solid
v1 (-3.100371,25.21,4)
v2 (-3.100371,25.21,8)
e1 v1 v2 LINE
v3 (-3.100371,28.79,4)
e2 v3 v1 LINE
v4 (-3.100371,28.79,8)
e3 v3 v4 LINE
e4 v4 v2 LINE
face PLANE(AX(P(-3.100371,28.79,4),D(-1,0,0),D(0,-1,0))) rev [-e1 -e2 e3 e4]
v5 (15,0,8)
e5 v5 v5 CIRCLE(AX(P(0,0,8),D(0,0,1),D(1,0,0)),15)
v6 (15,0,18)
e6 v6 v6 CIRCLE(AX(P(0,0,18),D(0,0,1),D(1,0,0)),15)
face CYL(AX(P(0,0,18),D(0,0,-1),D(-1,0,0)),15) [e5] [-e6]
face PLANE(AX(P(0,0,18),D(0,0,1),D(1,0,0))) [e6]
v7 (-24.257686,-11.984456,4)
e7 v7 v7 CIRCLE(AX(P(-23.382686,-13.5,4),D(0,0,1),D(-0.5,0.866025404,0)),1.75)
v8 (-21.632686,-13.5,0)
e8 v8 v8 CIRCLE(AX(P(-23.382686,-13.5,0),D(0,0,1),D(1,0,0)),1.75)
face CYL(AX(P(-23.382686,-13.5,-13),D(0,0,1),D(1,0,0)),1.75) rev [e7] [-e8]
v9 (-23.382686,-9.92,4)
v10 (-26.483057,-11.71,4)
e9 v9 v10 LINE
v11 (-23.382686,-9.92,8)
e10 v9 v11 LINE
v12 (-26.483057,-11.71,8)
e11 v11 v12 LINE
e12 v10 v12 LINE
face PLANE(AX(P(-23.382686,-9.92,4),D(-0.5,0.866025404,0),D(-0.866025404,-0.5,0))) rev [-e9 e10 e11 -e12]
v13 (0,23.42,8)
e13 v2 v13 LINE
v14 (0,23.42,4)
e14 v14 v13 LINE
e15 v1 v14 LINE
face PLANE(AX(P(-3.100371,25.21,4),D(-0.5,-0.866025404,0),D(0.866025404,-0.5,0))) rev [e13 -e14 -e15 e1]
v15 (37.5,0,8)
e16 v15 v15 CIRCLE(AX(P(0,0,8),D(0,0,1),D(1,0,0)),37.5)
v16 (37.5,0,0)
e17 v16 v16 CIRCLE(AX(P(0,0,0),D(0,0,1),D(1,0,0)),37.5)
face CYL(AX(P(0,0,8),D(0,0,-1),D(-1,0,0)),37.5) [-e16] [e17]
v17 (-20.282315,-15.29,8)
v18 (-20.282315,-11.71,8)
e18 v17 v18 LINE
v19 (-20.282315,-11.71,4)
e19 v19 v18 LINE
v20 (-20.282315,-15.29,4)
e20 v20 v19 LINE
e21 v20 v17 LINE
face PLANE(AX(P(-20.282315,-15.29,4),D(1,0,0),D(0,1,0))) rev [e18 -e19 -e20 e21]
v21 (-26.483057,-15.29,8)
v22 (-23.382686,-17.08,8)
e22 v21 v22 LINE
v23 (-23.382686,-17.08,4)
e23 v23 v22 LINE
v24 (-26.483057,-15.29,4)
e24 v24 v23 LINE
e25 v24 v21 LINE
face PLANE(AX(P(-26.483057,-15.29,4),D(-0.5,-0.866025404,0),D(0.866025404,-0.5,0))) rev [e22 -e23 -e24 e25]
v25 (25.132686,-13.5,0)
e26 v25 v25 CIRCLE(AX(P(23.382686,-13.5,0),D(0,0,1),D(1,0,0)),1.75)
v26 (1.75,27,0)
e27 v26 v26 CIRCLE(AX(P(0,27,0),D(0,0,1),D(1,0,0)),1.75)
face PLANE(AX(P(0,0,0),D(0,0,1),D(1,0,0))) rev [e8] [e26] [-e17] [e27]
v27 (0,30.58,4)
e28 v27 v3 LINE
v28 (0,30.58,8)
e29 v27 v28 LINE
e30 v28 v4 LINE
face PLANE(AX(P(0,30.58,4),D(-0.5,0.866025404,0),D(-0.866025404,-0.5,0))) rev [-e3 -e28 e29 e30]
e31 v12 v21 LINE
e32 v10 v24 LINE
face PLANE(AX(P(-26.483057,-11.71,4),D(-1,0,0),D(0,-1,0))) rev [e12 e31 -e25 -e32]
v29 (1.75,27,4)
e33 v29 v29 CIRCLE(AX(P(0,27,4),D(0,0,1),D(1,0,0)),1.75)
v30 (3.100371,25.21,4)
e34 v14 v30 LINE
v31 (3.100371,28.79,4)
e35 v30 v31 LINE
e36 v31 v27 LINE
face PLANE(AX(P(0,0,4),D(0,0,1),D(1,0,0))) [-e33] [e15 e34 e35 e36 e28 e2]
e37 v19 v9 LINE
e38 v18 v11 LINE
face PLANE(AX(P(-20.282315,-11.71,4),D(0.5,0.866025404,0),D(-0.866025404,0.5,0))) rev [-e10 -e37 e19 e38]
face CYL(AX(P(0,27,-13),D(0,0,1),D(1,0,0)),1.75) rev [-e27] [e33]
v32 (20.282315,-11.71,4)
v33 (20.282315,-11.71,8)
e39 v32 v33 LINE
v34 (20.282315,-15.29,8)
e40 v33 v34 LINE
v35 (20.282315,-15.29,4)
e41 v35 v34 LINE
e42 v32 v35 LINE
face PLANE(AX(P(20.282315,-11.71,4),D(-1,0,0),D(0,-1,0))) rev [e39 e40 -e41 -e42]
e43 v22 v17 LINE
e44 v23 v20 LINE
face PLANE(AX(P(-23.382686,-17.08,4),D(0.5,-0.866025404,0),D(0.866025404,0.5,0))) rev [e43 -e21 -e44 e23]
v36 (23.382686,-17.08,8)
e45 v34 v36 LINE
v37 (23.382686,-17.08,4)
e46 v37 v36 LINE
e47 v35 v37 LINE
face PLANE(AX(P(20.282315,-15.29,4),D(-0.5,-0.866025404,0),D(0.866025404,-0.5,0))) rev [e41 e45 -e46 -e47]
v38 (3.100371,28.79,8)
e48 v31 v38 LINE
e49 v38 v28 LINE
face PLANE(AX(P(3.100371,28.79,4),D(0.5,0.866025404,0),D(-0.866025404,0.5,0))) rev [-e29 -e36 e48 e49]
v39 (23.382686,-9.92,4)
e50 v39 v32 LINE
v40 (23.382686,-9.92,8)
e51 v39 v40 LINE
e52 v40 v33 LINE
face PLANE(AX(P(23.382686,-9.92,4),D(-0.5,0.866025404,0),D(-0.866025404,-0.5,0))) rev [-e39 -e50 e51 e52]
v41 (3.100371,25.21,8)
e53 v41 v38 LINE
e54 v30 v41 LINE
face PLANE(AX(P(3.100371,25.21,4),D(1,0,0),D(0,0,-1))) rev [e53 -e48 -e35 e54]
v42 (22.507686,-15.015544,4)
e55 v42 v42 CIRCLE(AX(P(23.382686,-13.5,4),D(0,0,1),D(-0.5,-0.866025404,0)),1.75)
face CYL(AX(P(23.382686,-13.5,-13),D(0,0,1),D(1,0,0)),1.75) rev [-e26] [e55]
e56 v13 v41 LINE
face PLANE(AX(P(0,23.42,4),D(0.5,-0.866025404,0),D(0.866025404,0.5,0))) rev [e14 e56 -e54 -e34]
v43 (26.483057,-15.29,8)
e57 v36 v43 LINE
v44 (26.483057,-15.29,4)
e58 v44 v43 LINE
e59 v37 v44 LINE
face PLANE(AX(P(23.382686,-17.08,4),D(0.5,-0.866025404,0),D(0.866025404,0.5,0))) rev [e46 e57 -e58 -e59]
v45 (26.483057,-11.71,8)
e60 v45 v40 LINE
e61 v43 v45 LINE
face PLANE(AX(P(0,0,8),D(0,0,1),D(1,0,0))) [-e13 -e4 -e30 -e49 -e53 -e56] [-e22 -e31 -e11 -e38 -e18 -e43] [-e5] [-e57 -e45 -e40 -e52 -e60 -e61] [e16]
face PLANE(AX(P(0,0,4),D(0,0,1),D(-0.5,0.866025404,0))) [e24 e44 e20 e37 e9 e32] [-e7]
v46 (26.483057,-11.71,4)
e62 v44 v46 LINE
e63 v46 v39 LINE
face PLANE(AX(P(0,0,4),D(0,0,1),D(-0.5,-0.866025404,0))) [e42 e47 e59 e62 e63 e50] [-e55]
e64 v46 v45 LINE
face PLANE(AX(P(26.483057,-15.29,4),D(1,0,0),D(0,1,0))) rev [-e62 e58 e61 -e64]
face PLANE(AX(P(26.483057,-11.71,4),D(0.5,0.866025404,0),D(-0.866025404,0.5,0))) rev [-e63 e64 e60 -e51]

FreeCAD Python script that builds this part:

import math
import FreeCAD as App
import Part
import Sketcher

V = App.Vector
Q = App.Units.Quantity


def add_polygon(sketch, points):
    """Adds a closed chain of lines whose ends are joined by coincident constraints."""
    first, n = sketch.GeometryCount, len(points)
    for a, b in zip(points, points[1:] + points[:1]):
        sketch.addGeometry(Part.LineSegment(App.Vector(*a, 0), App.Vector(*b, 0)), False)
    for i in range(n):
        sketch.addConstraint(Sketcher.Constraint("Coincident", first + i, 2, first + (i + 1) % n, 1))

doc = App.newDocument("Part")
params = doc.addObject("Spreadsheet::Sheet", "Params")
for row, (alias, value) in enumerate([
    ("sketch1_diameter", "75 mm"),
    ("pad1_length", "8 mm"),
    ("sketch2_height", "3.58 mm"),
    ("sketch2_length", "3.58 mm"),
    ("pocket1_length", "4 mm"),
    ("sketch3_radius", "1.75 mm"),
    ("pocket2_length", "17 mm"),
    ("sketch4_diameter", "30 mm"),
    ("pad2_length", "10 mm"),
], start=1):
    params.set(f"A{row}", alias)
    params.set(f"B{row}", "=" + value)
    params.setAlias(f"B{row}", alias)

body = doc.addObject("PartDesign::Body", "Body")

sketch1 = body.newObject("Sketcher::SketchObject", "Sketch")
sketch1.AttachmentSupport = (doc.getObject("XY_Plane"), [""])
sketch1.MapMode = "FlatFace"
sketch1.addGeometry(Part.Circle(V(0, 0, 0), V(0, 0, 1), 38), False)
sketch1.addConstraint(Sketcher.Constraint("Coincident", 0, 3, -1, 1))
sketch1.addConstraint(Sketcher.Constraint("Diameter", 0, 75.0))
sketch1.setExpression("Constraints[1]", "Params.sketch1_diameter")
pad1 = body.newObject("PartDesign::Pad", "Pad")
pad1.Profile = sketch1
pad1.setExpression("Length", "Params.pad1_length")

sketch2 = body.newObject("Sketcher::SketchObject", "Sketch001")
sketch2.AttachmentSupport = (doc.getObject("XY_Plane"), [""])
sketch2.MapMode = "FlatFace"
sketch2.AttachmentOffset = App.Placement(V(0, 0, 8), App.Rotation())
add_polygon(sketch2, [(0, 23.4), (3.1, 25.2), (3.1, 28.8), (0, 30.6), (-3.1, 28.8), (-3.1, 25.2)])
sketch2.addConstraint(Sketcher.Constraint("Vertical", 1))
sketch2.addConstraint(Sketcher.Constraint("Vertical", 4))
sketch2.addConstraint(Sketcher.Constraint("Symmetric", 1, 2, 3, 2, -2))
sketch2.addConstraint(Sketcher.Constraint("PointOnObject", 2, 2, -2))
sketch2.addConstraint(Sketcher.Constraint("PointOnObject", 5, 2, -2))
sketch2.addConstraint(Sketcher.Constraint("Parallel", 0, 3))
sketch2.addConstraint(Sketcher.Constraint("Parallel", 2, 5))
sketch2.addConstraint(Sketcher.Constraint("Angle", 0, Q("30 deg")))
sketch2.addConstraint(Sketcher.Constraint("DistanceY", 1, 1, 1, 2, 3.58))
sketch2.addConstraint(Sketcher.Constraint("Distance", 0, 3.58))
sketch2.addConstraint(Sketcher.Constraint("DistanceY", -1, 1, 0, 2, 25.21))
sketch2.setExpression("Constraints[14]", "Params.sketch2_height")
sketch2.setExpression("Constraints[15]", "Params.sketch2_length")
pocket1 = body.newObject("PartDesign::Pocket", "Pocket")
pocket1.Profile = sketch2
pocket1.setExpression("Length", "Params.pocket1_length")
doc.recompute()

polarpattern = body.newObject("PartDesign::PolarPattern", "PolarPattern")
polarpattern.Originals = [pocket1]
polarpattern.Axis = (doc.getObject("Z_Axis"), [""])
polarpattern.Angle = 360
polarpattern.Occurrences = 3
body.Tip = polarpattern

sketch3 = body.newObject("Sketcher::SketchObject", "Sketch002")
sketch3.AttachmentSupport = (doc.getObject("XY_Plane"), [""])
sketch3.MapMode = "FlatFace"
sketch3.AttachmentOffset = App.Placement(V(0, 0, 4), App.Rotation())
sketch3.addGeometry(Part.ArcOfCircle(Part.Circle(V(0, 27, 0), V(0, 0, 1), 1.8), math.radians(30), math.radians(210)), False)
sketch3.addGeometry(Part.ArcOfCircle(Part.Circle(V(0, 27, 0), V(0, 0, 1), 1.8), math.radians(-150), math.radians(0)), False)
sketch3.addGeometry(Part.ArcOfCircle(Part.Circle(V(0, 27, 0), V(0, 0, 1), 1.8), math.radians(0), math.radians(30)), False)
sketch3.addConstraint(Sketcher.Constraint("Tangent", 0, 2, 1, 1))
sketch3.addConstraint(Sketcher.Constraint("Tangent", 1, 2, 2, 1))
sketch3.addConstraint(Sketcher.Constraint("Tangent", 2, 2, 0, 1))
sketch3.addConstraint(Sketcher.Constraint("PointOnObject", 0, 3, -2))
sketch3.addConstraint(Sketcher.Constraint("Horizontal", 2, 3, 1, 2))
sketch3.addConstraint(Sketcher.Constraint("Radius", 0, 1.75))
sketch3.addConstraint(Sketcher.Constraint("DistanceY", -1, 1, 0, 3, 27.0))
sketch3.addConstraint(Sketcher.Constraint("DistanceY", 0, 2, 2, 2, 1.75))
sketch3.addConstraint(Sketcher.Constraint("DistanceY", -1, 1, 0, 2, 26.125))
sketch3.setExpression("Constraints[5]", "Params.sketch3_radius")
pocket2 = body.newObject("PartDesign::Pocket", "Pocket001")
pocket2.Profile = sketch3
pocket2.setExpression("Length", "Params.pocket2_length")
doc.recompute()

polarpattern2 = body.newObject("PartDesign::PolarPattern", "PolarPattern001")
polarpattern2.Originals = [pocket2]
polarpattern2.Axis = (doc.getObject("Z_Axis"), [""])
polarpattern2.Angle = 360
polarpattern2.Occurrences = 3
body.Tip = polarpattern2

sketch4 = body.newObject("Sketcher::SketchObject", "Sketch003")
sketch4.AttachmentSupport = (doc.getObject("XY_Plane"), [""])
sketch4.MapMode = "FlatFace"
sketch4.AttachmentOffset = App.Placement(V(0, 0, 8), App.Rotation())
sketch4.addGeometry(Part.Circle(V(0, 0, 0), V(0, 0, 1), 15), False)
sketch4.addConstraint(Sketcher.Constraint("Coincident", 0, 3, -1, 1))
sketch4.addConstraint(Sketcher.Constraint("Diameter", 0, 30.0))
sketch4.setExpression("Constraints[1]", "Params.sketch4_diameter")
pad2 = body.newObject("PartDesign::Pad", "Pad001")
pad2.Profile = sketch4
pad2.setExpression("Length", "Params.pad2_length")

doc.recompute()
